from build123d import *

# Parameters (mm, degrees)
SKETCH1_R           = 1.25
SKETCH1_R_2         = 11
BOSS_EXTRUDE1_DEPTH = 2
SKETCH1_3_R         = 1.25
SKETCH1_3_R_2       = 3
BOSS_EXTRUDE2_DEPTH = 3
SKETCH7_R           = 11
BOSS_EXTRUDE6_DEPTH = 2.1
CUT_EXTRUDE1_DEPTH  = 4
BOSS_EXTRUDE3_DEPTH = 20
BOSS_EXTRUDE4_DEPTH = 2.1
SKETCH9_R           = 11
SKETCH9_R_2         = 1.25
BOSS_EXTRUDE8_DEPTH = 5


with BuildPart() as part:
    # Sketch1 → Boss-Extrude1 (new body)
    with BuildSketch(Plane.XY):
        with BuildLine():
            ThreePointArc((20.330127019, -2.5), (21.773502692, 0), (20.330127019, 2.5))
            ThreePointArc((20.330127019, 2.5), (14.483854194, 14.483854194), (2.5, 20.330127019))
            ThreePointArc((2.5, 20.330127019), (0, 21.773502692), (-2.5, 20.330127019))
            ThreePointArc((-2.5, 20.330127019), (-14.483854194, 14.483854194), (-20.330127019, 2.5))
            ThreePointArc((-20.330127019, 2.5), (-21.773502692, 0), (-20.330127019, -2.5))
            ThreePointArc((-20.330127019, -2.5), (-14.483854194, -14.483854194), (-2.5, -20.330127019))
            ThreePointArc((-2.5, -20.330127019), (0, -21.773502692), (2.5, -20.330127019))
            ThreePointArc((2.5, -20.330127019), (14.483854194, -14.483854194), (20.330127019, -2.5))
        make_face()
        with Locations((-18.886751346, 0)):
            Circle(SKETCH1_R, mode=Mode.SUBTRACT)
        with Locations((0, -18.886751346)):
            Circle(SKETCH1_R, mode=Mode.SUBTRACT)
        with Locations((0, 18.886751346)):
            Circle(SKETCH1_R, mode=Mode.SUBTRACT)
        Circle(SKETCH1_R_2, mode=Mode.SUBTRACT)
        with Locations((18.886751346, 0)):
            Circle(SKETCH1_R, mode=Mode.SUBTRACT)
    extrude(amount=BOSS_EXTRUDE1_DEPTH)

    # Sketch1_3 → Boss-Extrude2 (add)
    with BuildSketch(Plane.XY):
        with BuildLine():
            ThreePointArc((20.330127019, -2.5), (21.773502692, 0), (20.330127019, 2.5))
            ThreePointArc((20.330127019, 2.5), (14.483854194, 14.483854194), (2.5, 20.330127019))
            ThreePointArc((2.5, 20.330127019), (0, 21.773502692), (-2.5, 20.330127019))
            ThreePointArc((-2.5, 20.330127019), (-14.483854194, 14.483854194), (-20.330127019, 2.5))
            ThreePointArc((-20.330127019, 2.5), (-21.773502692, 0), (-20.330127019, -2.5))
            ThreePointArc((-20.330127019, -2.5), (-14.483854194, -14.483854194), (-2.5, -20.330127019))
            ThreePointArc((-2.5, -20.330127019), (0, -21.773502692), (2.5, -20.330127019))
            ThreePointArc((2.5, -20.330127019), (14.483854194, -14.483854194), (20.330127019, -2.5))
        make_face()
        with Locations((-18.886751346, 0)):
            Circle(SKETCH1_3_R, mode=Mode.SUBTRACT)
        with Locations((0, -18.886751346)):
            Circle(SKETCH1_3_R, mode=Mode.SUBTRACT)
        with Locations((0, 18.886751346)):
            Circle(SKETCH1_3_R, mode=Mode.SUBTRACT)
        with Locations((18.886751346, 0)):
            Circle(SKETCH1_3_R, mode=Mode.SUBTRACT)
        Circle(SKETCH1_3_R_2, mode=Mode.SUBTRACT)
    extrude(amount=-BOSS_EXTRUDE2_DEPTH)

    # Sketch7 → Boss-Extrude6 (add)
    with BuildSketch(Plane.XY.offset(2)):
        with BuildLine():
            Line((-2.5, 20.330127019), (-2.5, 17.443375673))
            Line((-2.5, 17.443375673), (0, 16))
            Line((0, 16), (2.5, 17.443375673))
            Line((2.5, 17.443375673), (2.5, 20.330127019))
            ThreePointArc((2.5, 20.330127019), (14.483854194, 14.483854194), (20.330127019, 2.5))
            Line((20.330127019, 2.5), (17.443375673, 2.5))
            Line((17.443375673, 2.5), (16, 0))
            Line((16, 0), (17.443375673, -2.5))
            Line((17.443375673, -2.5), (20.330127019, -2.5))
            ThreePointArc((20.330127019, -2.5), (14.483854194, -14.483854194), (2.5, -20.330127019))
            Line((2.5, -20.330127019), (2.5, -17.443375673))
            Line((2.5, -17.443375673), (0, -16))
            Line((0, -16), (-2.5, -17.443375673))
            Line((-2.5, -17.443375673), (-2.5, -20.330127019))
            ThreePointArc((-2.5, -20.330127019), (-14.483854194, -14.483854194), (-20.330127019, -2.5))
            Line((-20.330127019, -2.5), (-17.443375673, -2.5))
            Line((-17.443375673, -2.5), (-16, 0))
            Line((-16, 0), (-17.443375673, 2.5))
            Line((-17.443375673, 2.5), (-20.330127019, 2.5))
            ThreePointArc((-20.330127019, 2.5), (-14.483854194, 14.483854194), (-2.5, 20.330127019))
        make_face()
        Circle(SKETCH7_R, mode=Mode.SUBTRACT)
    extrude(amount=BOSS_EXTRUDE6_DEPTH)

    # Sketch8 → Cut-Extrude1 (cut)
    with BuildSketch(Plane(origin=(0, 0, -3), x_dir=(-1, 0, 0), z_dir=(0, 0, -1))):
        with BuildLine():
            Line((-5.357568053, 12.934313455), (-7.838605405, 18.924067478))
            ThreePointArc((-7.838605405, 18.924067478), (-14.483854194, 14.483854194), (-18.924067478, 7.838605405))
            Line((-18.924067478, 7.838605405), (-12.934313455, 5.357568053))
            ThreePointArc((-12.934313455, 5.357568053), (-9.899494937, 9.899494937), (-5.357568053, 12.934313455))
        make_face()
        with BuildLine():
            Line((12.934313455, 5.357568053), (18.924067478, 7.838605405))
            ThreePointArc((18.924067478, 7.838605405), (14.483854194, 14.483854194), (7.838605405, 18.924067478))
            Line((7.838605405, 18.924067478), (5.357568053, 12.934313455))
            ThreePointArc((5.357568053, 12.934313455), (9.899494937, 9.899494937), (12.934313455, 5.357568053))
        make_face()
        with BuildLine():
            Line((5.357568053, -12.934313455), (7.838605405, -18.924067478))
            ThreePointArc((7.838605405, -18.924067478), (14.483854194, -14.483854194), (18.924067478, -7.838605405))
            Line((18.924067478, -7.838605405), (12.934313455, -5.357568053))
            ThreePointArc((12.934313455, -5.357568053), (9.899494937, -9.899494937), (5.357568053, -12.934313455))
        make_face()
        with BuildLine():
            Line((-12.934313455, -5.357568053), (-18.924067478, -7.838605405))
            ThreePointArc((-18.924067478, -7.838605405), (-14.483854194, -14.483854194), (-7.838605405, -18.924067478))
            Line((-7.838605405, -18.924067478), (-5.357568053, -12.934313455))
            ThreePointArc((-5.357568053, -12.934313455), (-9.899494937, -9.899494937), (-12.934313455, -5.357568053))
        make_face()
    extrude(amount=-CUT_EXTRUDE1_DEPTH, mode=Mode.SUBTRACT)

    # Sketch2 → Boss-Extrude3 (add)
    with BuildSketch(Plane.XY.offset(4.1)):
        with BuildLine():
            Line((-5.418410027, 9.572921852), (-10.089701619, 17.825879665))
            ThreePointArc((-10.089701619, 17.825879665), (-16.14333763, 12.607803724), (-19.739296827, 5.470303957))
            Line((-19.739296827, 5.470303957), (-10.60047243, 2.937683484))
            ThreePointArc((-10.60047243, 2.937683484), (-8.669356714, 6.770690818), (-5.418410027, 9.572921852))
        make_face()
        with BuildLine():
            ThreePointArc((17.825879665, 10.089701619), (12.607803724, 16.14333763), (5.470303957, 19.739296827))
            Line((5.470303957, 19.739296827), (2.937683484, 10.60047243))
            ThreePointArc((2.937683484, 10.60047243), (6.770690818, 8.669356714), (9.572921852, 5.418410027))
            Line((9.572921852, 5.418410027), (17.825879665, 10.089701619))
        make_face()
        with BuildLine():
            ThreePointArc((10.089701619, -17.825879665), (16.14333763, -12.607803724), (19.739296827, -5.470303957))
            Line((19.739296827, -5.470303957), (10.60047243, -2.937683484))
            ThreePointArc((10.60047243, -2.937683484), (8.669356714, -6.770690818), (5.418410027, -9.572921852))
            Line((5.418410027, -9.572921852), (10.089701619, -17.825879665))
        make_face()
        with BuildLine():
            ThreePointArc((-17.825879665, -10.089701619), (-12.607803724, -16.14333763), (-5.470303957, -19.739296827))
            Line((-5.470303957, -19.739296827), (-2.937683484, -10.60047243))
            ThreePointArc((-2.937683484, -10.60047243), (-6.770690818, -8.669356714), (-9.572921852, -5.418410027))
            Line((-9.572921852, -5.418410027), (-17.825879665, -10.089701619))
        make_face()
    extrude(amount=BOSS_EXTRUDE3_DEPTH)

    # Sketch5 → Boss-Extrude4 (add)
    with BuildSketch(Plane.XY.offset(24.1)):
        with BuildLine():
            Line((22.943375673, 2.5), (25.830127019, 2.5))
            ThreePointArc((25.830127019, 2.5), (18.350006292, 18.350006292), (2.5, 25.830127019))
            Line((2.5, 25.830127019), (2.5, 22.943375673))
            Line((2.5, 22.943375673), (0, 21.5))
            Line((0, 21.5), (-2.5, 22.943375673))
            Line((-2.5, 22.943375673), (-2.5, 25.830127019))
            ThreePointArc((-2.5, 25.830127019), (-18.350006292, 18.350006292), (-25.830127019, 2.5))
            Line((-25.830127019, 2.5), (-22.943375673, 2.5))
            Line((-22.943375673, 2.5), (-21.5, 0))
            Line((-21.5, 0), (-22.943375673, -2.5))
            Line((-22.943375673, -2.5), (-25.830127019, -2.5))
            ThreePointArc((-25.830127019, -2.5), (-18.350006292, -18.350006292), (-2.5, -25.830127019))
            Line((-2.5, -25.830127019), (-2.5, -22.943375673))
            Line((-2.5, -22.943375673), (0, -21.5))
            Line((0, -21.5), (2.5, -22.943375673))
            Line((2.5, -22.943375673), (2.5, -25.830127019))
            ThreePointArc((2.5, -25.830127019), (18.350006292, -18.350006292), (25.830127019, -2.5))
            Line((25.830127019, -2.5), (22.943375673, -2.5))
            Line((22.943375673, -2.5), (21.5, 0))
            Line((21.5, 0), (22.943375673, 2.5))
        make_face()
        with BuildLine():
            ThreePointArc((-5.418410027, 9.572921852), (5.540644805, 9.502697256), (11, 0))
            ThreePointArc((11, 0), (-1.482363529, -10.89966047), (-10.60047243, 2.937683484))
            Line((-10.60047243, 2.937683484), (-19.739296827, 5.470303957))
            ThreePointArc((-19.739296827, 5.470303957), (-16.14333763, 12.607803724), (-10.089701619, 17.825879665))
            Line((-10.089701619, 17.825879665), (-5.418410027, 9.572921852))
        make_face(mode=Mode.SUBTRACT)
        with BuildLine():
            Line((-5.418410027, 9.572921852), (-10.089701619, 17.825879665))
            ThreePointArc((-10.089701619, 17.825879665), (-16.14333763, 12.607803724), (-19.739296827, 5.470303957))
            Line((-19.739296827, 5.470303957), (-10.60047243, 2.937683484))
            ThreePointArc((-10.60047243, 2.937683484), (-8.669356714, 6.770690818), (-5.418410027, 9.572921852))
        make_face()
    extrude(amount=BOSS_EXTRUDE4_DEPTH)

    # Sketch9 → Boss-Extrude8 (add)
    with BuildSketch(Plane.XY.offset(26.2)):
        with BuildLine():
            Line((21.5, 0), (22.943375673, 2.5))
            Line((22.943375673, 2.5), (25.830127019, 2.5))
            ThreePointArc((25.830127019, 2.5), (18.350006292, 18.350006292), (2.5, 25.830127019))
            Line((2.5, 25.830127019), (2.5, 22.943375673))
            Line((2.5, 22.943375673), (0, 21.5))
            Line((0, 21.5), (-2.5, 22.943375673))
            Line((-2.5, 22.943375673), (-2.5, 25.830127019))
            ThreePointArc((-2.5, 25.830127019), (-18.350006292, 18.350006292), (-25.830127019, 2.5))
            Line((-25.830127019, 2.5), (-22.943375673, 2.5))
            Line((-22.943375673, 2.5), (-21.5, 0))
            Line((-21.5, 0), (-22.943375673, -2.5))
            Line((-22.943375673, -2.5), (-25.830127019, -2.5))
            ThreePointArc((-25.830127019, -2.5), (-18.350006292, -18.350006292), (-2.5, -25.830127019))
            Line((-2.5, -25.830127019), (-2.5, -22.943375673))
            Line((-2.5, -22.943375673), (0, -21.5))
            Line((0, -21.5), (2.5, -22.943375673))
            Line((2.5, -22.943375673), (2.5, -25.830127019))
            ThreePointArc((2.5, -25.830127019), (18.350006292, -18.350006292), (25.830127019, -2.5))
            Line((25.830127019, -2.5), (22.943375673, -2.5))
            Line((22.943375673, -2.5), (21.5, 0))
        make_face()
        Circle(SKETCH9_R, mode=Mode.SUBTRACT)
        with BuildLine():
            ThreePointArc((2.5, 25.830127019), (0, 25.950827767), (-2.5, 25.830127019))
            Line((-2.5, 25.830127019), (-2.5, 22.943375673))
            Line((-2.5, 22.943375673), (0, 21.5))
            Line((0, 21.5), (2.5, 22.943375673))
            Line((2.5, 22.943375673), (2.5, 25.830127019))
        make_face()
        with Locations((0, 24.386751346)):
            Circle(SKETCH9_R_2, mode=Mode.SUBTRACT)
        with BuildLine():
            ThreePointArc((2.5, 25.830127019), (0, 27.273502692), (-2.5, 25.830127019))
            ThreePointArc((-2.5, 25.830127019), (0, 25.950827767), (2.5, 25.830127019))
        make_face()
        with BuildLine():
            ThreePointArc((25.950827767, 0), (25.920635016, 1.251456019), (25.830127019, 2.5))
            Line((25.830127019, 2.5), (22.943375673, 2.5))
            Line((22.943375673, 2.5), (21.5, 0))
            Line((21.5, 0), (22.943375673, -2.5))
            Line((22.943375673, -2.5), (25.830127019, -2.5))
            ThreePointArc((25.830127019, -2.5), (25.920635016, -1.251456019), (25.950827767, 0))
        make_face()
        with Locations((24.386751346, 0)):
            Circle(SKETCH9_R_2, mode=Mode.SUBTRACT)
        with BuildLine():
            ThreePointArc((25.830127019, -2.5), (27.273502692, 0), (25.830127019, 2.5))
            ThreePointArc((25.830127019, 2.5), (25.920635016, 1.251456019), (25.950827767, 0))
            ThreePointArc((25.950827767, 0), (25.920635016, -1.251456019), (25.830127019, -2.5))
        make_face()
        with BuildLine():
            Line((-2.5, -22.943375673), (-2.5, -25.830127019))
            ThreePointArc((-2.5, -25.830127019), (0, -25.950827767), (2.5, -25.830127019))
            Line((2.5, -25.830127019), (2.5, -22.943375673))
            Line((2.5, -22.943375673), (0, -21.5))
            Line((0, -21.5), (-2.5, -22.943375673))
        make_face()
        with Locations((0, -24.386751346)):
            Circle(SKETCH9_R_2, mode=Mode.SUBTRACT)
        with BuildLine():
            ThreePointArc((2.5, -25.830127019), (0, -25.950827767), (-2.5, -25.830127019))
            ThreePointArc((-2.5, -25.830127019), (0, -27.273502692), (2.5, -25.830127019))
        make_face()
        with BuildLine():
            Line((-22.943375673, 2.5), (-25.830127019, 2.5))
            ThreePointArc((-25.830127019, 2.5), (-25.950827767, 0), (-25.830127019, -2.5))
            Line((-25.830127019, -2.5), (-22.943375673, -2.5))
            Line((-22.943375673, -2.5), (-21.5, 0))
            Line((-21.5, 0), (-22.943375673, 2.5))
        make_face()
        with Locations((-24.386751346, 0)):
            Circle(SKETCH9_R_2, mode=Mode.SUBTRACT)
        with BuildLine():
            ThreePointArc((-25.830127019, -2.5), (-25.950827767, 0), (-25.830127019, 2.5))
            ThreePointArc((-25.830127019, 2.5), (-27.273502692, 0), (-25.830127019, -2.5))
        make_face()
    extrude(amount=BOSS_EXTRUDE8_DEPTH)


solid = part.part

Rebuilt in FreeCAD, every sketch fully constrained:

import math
import FreeCAD as App
import Part
import Sketcher
Q = App.Units.Quantity

doc = App.newDocument("Part")
body = doc.addObject("PartDesign::Body", "Body")

# Sketch on XY plane
sketch1 = doc.addObject("Sketcher::SketchObject", "Sketch")
body.addObject(sketch1)
sketch1.AttachmentSupport = (doc.XY_Plane, [""])
sketch1.MapMode = "FlatFace"
sketch1.addGeometry([
    Part.ArcOfCircle(Part.Circle(App.Vector(18.9, 0, 0), App.Vector(0, 0, 1), 2.9), math.radians(-60), math.radians(60)),  # 0
    Part.ArcOfCircle(Part.Circle(App.Vector(0, 0, 0), App.Vector(0, 0, 1), 20.5), math.radians(7), math.radians(83)),  # 1
    Part.ArcOfCircle(Part.Circle(App.Vector(0, 18.9, 0), App.Vector(0, 0, 1), 2.9), math.radians(30), math.radians(150)),  # 2
    Part.ArcOfCircle(Part.Circle(App.Vector(0, 0, 0), App.Vector(0, 0, 1), 20.5), math.radians(97), math.radians(173)),  # 3
    Part.ArcOfCircle(Part.Circle(App.Vector(-18.9, 0, 0), App.Vector(0, 0, 1), 2.9), math.radians(120), math.radians(240)),  # 4
    Part.ArcOfCircle(Part.Circle(App.Vector(0, 0, 0), App.Vector(0, 0, 1), 20.5), math.radians(-173), math.radians(-97)),  # 5
    Part.ArcOfCircle(Part.Circle(App.Vector(0, -18.9, 0), App.Vector(0, 0, 1), 2.9), math.radians(-150), math.radians(-30)),  # 6
    Part.ArcOfCircle(Part.Circle(App.Vector(0, 0, 0), App.Vector(0, 0, 1), 20.5), math.radians(-83), math.radians(-7)),  # 7
    Part.Circle(App.Vector(0, -18.9, 0), App.Vector(0, 0, 1), 1.2),  # 8
    Part.Circle(App.Vector(-18.9, 0, 0), App.Vector(0, 0, 1), 1.2),  # 9
    Part.Circle(App.Vector(0, 0, 0), App.Vector(0, 0, 1), 11),  # 10
    Part.Circle(App.Vector(18.9, 0, 0), App.Vector(0, 0, 1), 1.2),  # 11
    Part.Circle(App.Vector(0, 18.9, 0), App.Vector(0, 0, 1), 1.2),  # 12
], False)
sketch1.addConstraint([
    Sketcher.Constraint("Coincident", 0, 2, 1, 1),
    Sketcher.Constraint("Coincident", 1, 2, 2, 1),
    Sketcher.Constraint("Coincident", 2, 2, 3, 1),
    Sketcher.Constraint("Coincident", 3, 2, 4, 1),
    Sketcher.Constraint("Coincident", 4, 2, 5, 1),
    Sketcher.Constraint("Coincident", 5, 2, 6, 1),
    Sketcher.Constraint("Coincident", 6, 2, 7, 1),
    Sketcher.Constraint("Coincident", 7, 2, 0, 1),
    Sketcher.Constraint("Coincident", 1, 3, -1, 1),
    Sketcher.Constraint("Coincident", 3, 3, -1, 1),
    Sketcher.Constraint("Coincident", 5, 3, -1, 1),
    Sketcher.Constraint("Coincident", 7, 3, -1, 1),
    Sketcher.Constraint("Coincident", 10, 3, -1, 1),
    Sketcher.Constraint("Coincident", 8, 3, 6, 3),
    Sketcher.Constraint("Coincident", 9, 3, 4, 3),
    Sketcher.Constraint("Coincident", 11, 3, 0, 3),
    Sketcher.Constraint("Coincident", 12, 3, 2, 3),
    Sketcher.Constraint("Equal", 0, 2),
    Sketcher.Constraint("Equal", 1, 3),
    Sketcher.Constraint("Equal", 2, 4),
    Sketcher.Constraint("Equal", 3, 5),
    Sketcher.Constraint("Equal", 4, 6),
    Sketcher.Constraint("Equal", 5, 7),
    Sketcher.Constraint("Equal", 8, 9),
    Sketcher.Constraint("Equal", 9, 11),
    Sketcher.Constraint("Equal", 11, 12),
    Sketcher.Constraint("Symmetric", 0, 3, 4, 3, -1, 1),
    Sketcher.Constraint("Symmetric", 2, 3, 6, 3, -1, 1),
    Sketcher.Constraint("PointOnObject", 0, 3, -1),
    Sketcher.Constraint("PointOnObject", 2, 3, -2),
    Sketcher.Constraint("Diameter", 10, 22.0),
    Sketcher.Constraint("Diameter", 8, 2.5),
    Sketcher.Constraint("DistanceX", 2, 2, 1, 2, 5.0),
    Sketcher.Constraint("DistanceY", 4, 2, 3, 2, 5.0),
    Sketcher.Constraint("Radius", 0, 2.886751),
    Sketcher.Constraint("Radius", 1, 20.483263),
])
pad1 = doc.addObject("PartDesign::Pad", "Pad")
body.addObject(pad1)
pad1.Profile = sketch1
pad1.Length = 2

# Sketch on XY plane
sketch2 = doc.addObject("Sketcher::SketchObject", "Sketch001")
body.addObject(sketch2)
sketch2.AttachmentSupport = (doc.XY_Plane, [""])
sketch2.MapMode = "FlatFace"
sketch2.addGeometry([
    Part.ArcOfCircle(Part.Circle(App.Vector(18.9, 0, 0), App.Vector(0, 0, 1), 2.9), math.radians(-60), math.radians(60)),  # 0
    Part.ArcOfCircle(Part.Circle(App.Vector(0, 0, 0), App.Vector(0, 0, 1), 20.5), math.radians(7), math.radians(83)),  # 1
    Part.ArcOfCircle(Part.Circle(App.Vector(0, 18.9, 0), App.Vector(0, 0, 1), 2.9), math.radians(30), math.radians(150)),  # 2
    Part.ArcOfCircle(Part.Circle(App.Vector(0, 0, 0), App.Vector(0, 0, 1), 20.5), math.radians(97), math.radians(173)),  # 3
    Part.ArcOfCircle(Part.Circle(App.Vector(-18.9, 0, 0), App.Vector(0, 0, 1), 2.9), math.radians(120), math.radians(240)),  # 4
    Part.ArcOfCircle(Part.Circle(App.Vector(0, 0, 0), App.Vector(0, 0, 1), 20.5), math.radians(-173), math.radians(-97)),  # 5
    Part.ArcOfCircle(Part.Circle(App.Vector(0, -18.9, 0), App.Vector(0, 0, 1), 2.9), math.radians(-150), math.radians(-30)),  # 6
    Part.ArcOfCircle(Part.Circle(App.Vector(0, 0, 0), App.Vector(0, 0, 1), 20.5), math.radians(-83), math.radians(-7)),  # 7
    Part.Circle(App.Vector(0, -18.9, 0), App.Vector(0, 0, 1), 1.2),  # 8
    Part.Circle(App.Vector(-18.9, 0, 0), App.Vector(0, 0, 1), 1.2),  # 9
    Part.Circle(App.Vector(0, 0, 0), App.Vector(0, 0, 1), 3),  # 10
    Part.Circle(App.Vector(18.9, 0, 0), App.Vector(0, 0, 1), 1.2),  # 11
    Part.Circle(App.Vector(0, 18.9, 0), App.Vector(0, 0, 1), 1.2),  # 12
], False)
sketch2.addConstraint([
    Sketcher.Constraint("Coincident", 0, 2, 1, 1),
    Sketcher.Constraint("Coincident", 1, 2, 2, 1),
    Sketcher.Constraint("Coincident", 2, 2, 3, 1),
    Sketcher.Constraint("Coincident", 3, 2, 4, 1),
    Sketcher.Constraint("Coincident", 4, 2, 5, 1),
    Sketcher.Constraint("Coincident", 5, 2, 6, 1),
    Sketcher.Constraint("Coincident", 6, 2, 7, 1),
    Sketcher.Constraint("Coincident", 7, 2, 0, 1),
    Sketcher.Constraint("Coincident", 1, 3, -1, 1),
    Sketcher.Constraint("Coincident", 3, 3, -1, 1),
    Sketcher.Constraint("Coincident", 5, 3, -1, 1),
    Sketcher.Constraint("Coincident", 7, 3, -1, 1),
    Sketcher.Constraint("Coincident", 10, 3, -1, 1),
    Sketcher.Constraint("Coincident", 8, 3, 6, 3),
    Sketcher.Constraint("Coincident", 9, 3, 4, 3),
    Sketcher.Constraint("Coincident", 11, 3, 0, 3),
    Sketcher.Constraint("Coincident", 12, 3, 2, 3),
    Sketcher.Constraint("Equal", 0, 2),
    Sketcher.Constraint("Equal", 1, 3),
    Sketcher.Constraint("Equal", 2, 4),
    Sketcher.Constraint("Equal", 3, 5),
    Sketcher.Constraint("Equal", 4, 6),
    Sketcher.Constraint("Equal", 5, 7),
    Sketcher.Constraint("Equal", 8, 9),
    Sketcher.Constraint("Equal", 9, 11),
    Sketcher.Constraint("Equal", 11, 12),
    Sketcher.Constraint("Symmetric", 0, 3, 4, 3, -1, 1),
    Sketcher.Constraint("Symmetric", 2, 3, 6, 3, -1, 1),
    Sketcher.Constraint("PointOnObject", 0, 3, -1),
    Sketcher.Constraint("PointOnObject", 2, 3, -2),
    Sketcher.Constraint("Diameter", 10, 6.0),
    Sketcher.Constraint("Diameter", 8, 2.5),
    Sketcher.Constraint("DistanceX", 2, 2, 1, 2, 5.0),
    Sketcher.Constraint("DistanceY", 4, 2, 3, 2, 5.0),
    Sketcher.Constraint("Radius", 0, 2.886751),
    Sketcher.Constraint("Radius", 1, 20.483263),
])
pad2 = doc.addObject("PartDesign::Pad", "Pad001")
body.addObject(pad2)
pad2.Profile = sketch2
pad2.Length = 3
pad2.Reversed = True

# Sketch on XY plane
sketch3 = doc.addObject("Sketcher::SketchObject", "Sketch002")
body.addObject(sketch3)
sketch3.AttachmentSupport = (doc.XY_Plane, [""])
sketch3.MapMode = "FlatFace"
sketch3.AttachmentOffset = App.Placement(App.Vector(0, 0, 2), App.Rotation())
sketch3.addGeometry([
    Part.LineSegment(App.Vector(-2.5, 17.4, 0), App.Vector(-2.5, 20.3, 0)),  # 0
    Part.ArcOfCircle(Part.Circle(App.Vector(0, 0, 0), App.Vector(0, 0, 1), 20.5), math.radians(97), math.radians(173)),  # 1
    Part.LineSegment(App.Vector(-20.3, 2.5, 0), App.Vector(-17.4, 2.5, 0)),  # 2
    Part.LineSegment(App.Vector(-17.4, 2.5, 0), App.Vector(-16, 0, 0)),  # 3
    Part.LineSegment(App.Vector(-16, 0, 0), App.Vector(-17.4, -2.5, 0)),  # 4
    Part.LineSegment(App.Vector(-17.4, -2.5, 0), App.Vector(-20.3, -2.5, 0)),  # 5
    Part.ArcOfCircle(Part.Circle(App.Vector(0, 0, 0), App.Vector(0, 0, 1), 20.5), math.radians(-173), math.radians(-97)),  # 6
    Part.LineSegment(App.Vector(-2.5, -20.3, 0), App.Vector(-2.5, -17.4, 0)),  # 7
    Part.LineSegment(App.Vector(-2.5, -17.4, 0), App.Vector(0, -16, 0)),  # 8
    Part.LineSegment(App.Vector(0, -16, 0), App.Vector(2.5, -17.4, 0)),  # 9
    Part.LineSegment(App.Vector(2.5, -17.4, 0), App.Vector(2.5, -20.3, 0)),  # 10
    Part.ArcOfCircle(Part.Circle(App.Vector(0, 0, 0), App.Vector(0, 0, 1), 20.5), math.radians(-83), math.radians(-7)),  # 11
    Part.LineSegment(App.Vector(20.3, -2.5, 0), App.Vector(17.4, -2.5, 0)),  # 12
    Part.LineSegment(App.Vector(17.4, -2.5, 0), App.Vector(16, 0, 0)),  # 13
    Part.LineSegment(App.Vector(16, 0, 0), App.Vector(17.4, 2.5, 0)),  # 14
    Part.LineSegment(App.Vector(17.4, 2.5, 0), App.Vector(20.3, 2.5, 0)),  # 15
    Part.ArcOfCircle(Part.Circle(App.Vector(0, 0, 0), App.Vector(0, 0, 1), 20.5), math.radians(7), math.radians(83)),  # 16
    Part.LineSegment(App.Vector(2.5, 20.3, 0), App.Vector(2.5, 17.4, 0)),  # 17
    Part.LineSegment(App.Vector(2.5, 17.4, 0), App.Vector(0, 16, 0)),  # 18
    Part.LineSegment(App.Vector(0, 16, 0), App.Vector(-2.5, 17.4, 0)),  # 19
    Part.Circle(App.Vector(0, 0, 0), App.Vector(0, 0, 1), 11),  # 20
], False)
sketch3.addConstraint([
    Sketcher.Constraint("Coincident", 0, 2, 1, 1),
    Sketcher.Constraint("Coincident", 1, 2, 2, 1),
    Sketcher.Constraint("Coincident", 2, 2, 3, 1),
    Sketcher.Constraint("Coincident", 3, 2, 4, 1),
    Sketcher.Constraint("Coincident", 4, 2, 5, 1),
    Sketcher.Constraint("Coincident", 5, 2, 6, 1),
    Sketcher.Constraint("Coincident", 6, 2, 7, 1),
    Sketcher.Constraint("Coincident", 7, 2, 8, 1),
    Sketcher.Constraint("Coincident", 8, 2, 9, 1),
    Sketcher.Constraint("Coincident", 9, 2, 10, 1),
    Sketcher.Constraint("Coincident", 10, 2, 11, 1),
    Sketcher.Constraint("Coincident", 11, 2, 12, 1),
    Sketcher.Constraint("Coincident", 12, 2, 13, 1),
    Sketcher.Constraint("Coincident", 13, 2, 14, 1),
    Sketcher.Constraint("Coincident", 14, 2, 15, 1),
    Sketcher.Constraint("Coincident", 15, 2, 16, 1),
    Sketcher.Constraint("Coincident", 16, 2, 17, 1),
    Sketcher.Constraint("Coincident", 17, 2, 18, 1),
    Sketcher.Constraint("Coincident", 18, 2, 19, 1),
    Sketcher.Constraint("Coincident", 19, 2, 0, 1),
    Sketcher.Constraint("Vertical", 0),
    Sketcher.Constraint("Horizontal", 2),
    Sketcher.Constraint("Horizontal", 5),
    Sketcher.Constraint("Vertical", 7),
    Sketcher.Constraint("Vertical", 10),
    Sketcher.Constraint("Horizontal", 12),
    Sketcher.Constraint("Horizontal", 15),
    Sketcher.Constraint("Vertical", 17),
    Sketcher.Constraint("Coincident", 1, 3, -1, 1),
    Sketcher.Constraint("Coincident", 6, 3, -1, 1),
    Sketcher.Constraint("Coincident", 11, 3, -1, 1),
    Sketcher.Constraint("Coincident", 16, 3, -1, 1),
    Sketcher.Constraint("Coincident", 20, 3, -1, 1),
    Sketcher.Constraint("Equal", 1, 6),
    Sketcher.Constraint("Equal", 6, 11),
    Sketcher.Constraint("Equal", 11, 16),
    Sketcher.Constraint("Symmetric", 2, 2, 12, 2, -1, 1),
    Sketcher.Constraint("Symmetric", 3, 2, 13, 2, -1, 1),
    Sketcher.Constraint("Symmetric", 4, 2, 14, 2, -1, 1),
    Sketcher.Constraint("Symmetric", 7, 2, 17, 2, -1, 1),
    Sketcher.Constraint("Symmetric", 8, 2, 18, 2, -1, 1),
    Sketcher.Constraint("Symmetric", 9, 2, 19, 2, -1, 1),
    Sketcher.Constraint("Symmetric", 7, 2, 9, 2, -2),
    Sketcher.Constraint("Symmetric", 4, 2, 12, 2, -2),
    Sketcher.Constraint("PointOnObject", 3, 2, -1),
    Sketcher.Constraint("PointOnObject", 8, 2, -2),
    Sketcher.Constraint("Perpendicular", 3, 8),
    Sketcher.Constraint("Equal", 15, 0),
    Sketcher.Constraint("Equal", 4, 8),
    Sketcher.Constraint("Diameter", 20, 22.0),
    Sketcher.Constraint("Angle", 3, Q("-60 deg")),
    Sketcher.Constraint("DistanceX", 3, 2, -1, 1, 16.0),
    Sketcher.Constraint("DistanceY", 4, 2, 2, 2, 5.0),
    Sketcher.Constraint("Radius", 1, 20.483263),
])
pad3 = doc.addObject("PartDesign::Pad", "Pad002")
body.addObject(pad3)
pad3.Profile = sketch3
pad3.Length = 2.1

# Sketch on XY plane
sketch4 = doc.addObject("Sketcher::SketchObject", "Sketch003")
body.addObject(sketch4)
sketch4.AttachmentSupport = (doc.XY_Plane, [""])
sketch4.MapMode = "FlatFace"
sketch4.AttachmentOffset = App.Placement(App.Vector(0, 0, -3), App.Rotation())
sketch4.addGeometry([
    Part.LineSegment(App.Vector(5, 13, 0), App.Vector(8, 19, 0)),  # 0
    Part.ArcOfCircle(Part.Circle(App.Vector(0, 0, 0), App.Vector(0, 0, 1), 20), math.radians(22), math.radians(68)),  # 1
    Part.LineSegment(App.Vector(19, 8, 0), App.Vector(13, 5, 0)),  # 2
    Part.ArcOfCircle(Part.Circle(App.Vector(0, 0, 0), App.Vector(0, 0, 1), 14), math.radians(22), math.radians(68)),  # 3
    Part.LineSegment(App.Vector(-13, 5, 0), App.Vector(-19, 8, 0)),  # 4
    Part.ArcOfCircle(Part.Circle(App.Vector(0, 0, 0), App.Vector(0, 0, 1), 20), math.radians(112), math.radians(158)),  # 5
    Part.LineSegment(App.Vector(-8, 19, 0), App.Vector(-5, 13, 0)),  # 6
    Part.ArcOfCircle(Part.Circle(App.Vector(0, 0, 0), App.Vector(0, 0, 1), 14), math.radians(112), math.radians(158)),  # 7
    Part.LineSegment(App.Vector(-5, -13, 0), App.Vector(-8, -19, 0)),  # 8
    Part.ArcOfCircle(Part.Circle(App.Vector(0, 0, 0), App.Vector(0, 0, 1), 20), math.radians(-158), math.radians(-112)),  # 9
    Part.LineSegment(App.Vector(-19, -8, 0), App.Vector(-13, -5, 0)),  # 10
    Part.ArcOfCircle(Part.Circle(App.Vector(0, 0, 0), App.Vector(0, 0, 1), 14), math.radians(-158), math.radians(-112)),  # 11
    Part.LineSegment(App.Vector(13, -5, 0), App.Vector(19, -8, 0)),  # 12
    Part.ArcOfCircle(Part.Circle(App.Vector(0, 0, 0), App.Vector(0, 0, 1), 20), math.radians(-68), math.radians(-22)),  # 13
    Part.LineSegment(App.Vector(8, -19, 0), App.Vector(5, -13, 0)),  # 14
    Part.ArcOfCircle(Part.Circle(App.Vector(0, 0, 0), App.Vector(0, 0, 1), 14), math.radians(-68), math.radians(-22)),  # 15
], False)
sketch4.addConstraint([
    Sketcher.Constraint("Coincident", 0, 2, 1, 2),
    Sketcher.Constraint("Coincident", 1, 1, 2, 1),
    Sketcher.Constraint("Coincident", 2, 2, 3, 1),
    Sketcher.Constraint("Coincident", 3, 2, 0, 1),
    Sketcher.Constraint("Coincident", 4, 2, 5, 2),
    Sketcher.Constraint("Coincident", 5, 1, 6, 1),
    Sketcher.Constraint("Coincident", 6, 2, 7, 1),
    Sketcher.Constraint("Coincident", 7, 2, 4, 1),
    Sketcher.Constraint("Coincident", 8, 2, 9, 2),
    Sketcher.Constraint("Coincident", 9, 1, 10, 1),
    Sketcher.Constraint("Coincident", 10, 2, 11, 1),
    Sketcher.Constraint("Coincident", 11, 2, 8, 1),
    Sketcher.Constraint("Coincident", 12, 2, 13, 2),
    Sketcher.Constraint("Coincident", 13, 1, 14, 1),
    Sketcher.Constraint("Coincident", 14, 2, 15, 1),
    Sketcher.Constraint("Coincident", 15, 2, 12, 1),
    Sketcher.Constraint("Coincident", 1, 3, -1, 1),
    Sketcher.Constraint("Coincident", 3, 3, -1, 1),
    Sketcher.Constraint("Coincident", 5, 3, -1, 1),
    Sketcher.Constraint("Coincident", 7, 3, -1, 1),
    Sketcher.Constraint("Coincident", 9, 3, -1, 1),
    Sketcher.Constraint("Coincident", 11, 3, -1, 1),
    Sketcher.Constraint("Coincident", 13, 3, -1, 1),
    Sketcher.Constraint("Coincident", 15, 3, -1, 1),
    Sketcher.Constraint("Equal", 1, 5),
    Sketcher.Constraint("Equal", 3, 7),
    Sketcher.Constraint("Equal", 5, 9),
    Sketcher.Constraint("Equal", 7, 11),
    Sketcher.Constraint("Equal", 9, 13),
    Sketcher.Constraint("Equal", 11, 15),
    Sketcher.Constraint("Perpendicular", 0, 4),
    Sketcher.Constraint("Perpendicular", 2, 6),
    Sketcher.Constraint("Perpendicular", 4, 8),
    Sketcher.Constraint("Perpendicular", 6, 10),
    Sketcher.Constraint("Perpendicular", 8, 12),
    Sketcher.Constraint("Perpendicular", 10, 14),
    Sketcher.Constraint("Horizontal", 1, 1, 4, 2),
    Sketcher.Constraint("Horizontal", 0, 2, 5, 1),
    Sketcher.Constraint("Horizontal", 3, 2, 6, 2),
    Sketcher.Constraint("Horizontal", 9, 1, 12, 2),
    Sketcher.Constraint("Horizontal", 8, 2, 13, 1),
    Sketcher.Constraint("Vertical", 5, 1, 8, 2),
    Sketcher.Constraint("Vertical", 4, 2, 9, 1),
    Sketcher.Constraint("Radius", 3, 14.0),
    Sketcher.Constraint("Angle", 0, Q("67.5 deg")),
    Sketcher.Constraint("Radius", 1, 20.483263),
    Sketcher.Constraint("DistanceY", -1, 1, 2, 2, 5.357568),
    Sketcher.Constraint("DistanceX", -1, 1, 3, 2, 5.357568),
])
pocket1 = doc.addObject("PartDesign::Pocket", "Pocket")
body.addObject(pocket1)
pocket1.Profile = sketch4
pocket1.Length = 4
pocket1.Reversed = True

# Sketch on XY plane
sketch5 = doc.addObject("Sketcher::SketchObject", "Sketch004")
body.addObject(sketch5)
sketch5.AttachmentSupport = (doc.XY_Plane, [""])
sketch5.MapMode = "FlatFace"
sketch5.AttachmentOffset = App.Placement(App.Vector(0, 0, 4.1), App.Rotation())
sketch5.addGeometry([
    Part.LineSegment(App.Vector(-5, 10, 0), App.Vector(-10, 18, 0)),  # 0
    Part.ArcOfCircle(Part.Circle(App.Vector(0, 0, 0), App.Vector(0, 0, 1), 20), math.radians(120), math.radians(165)),  # 1
    Part.LineSegment(App.Vector(-20, 5, 0), App.Vector(-11, 3, 0)),  # 2
    Part.ArcOfCircle(Part.Circle(App.Vector(0, 0, 0), App.Vector(0, 0, 1), 11), math.radians(120), math.radians(165)),  # 3
    Part.ArcOfCircle(Part.Circle(App.Vector(0, 0, 0), App.Vector(0, 0, 1), 20), math.radians(30), math.radians(75)),  # 4
    Part.LineSegment(App.Vector(5, 20, 0), App.Vector(3, 11, 0)),  # 5
    Part.ArcOfCircle(Part.Circle(App.Vector(0, 0, 0), App.Vector(0, 0, 1), 11), math.radians(30), math.radians(75)),  # 6
    Part.LineSegment(App.Vector(10, 5, 0), App.Vector(18, 10, 0)),  # 7
    Part.ArcOfCircle(Part.Circle(App.Vector(0, 0, 0), App.Vector(0, 0, 1), 20), math.radians(-60), math.radians(-15)),  # 8
    Part.LineSegment(App.Vector(20, -5, 0), App.Vector(11, -3, 0)),  # 9
    Part.ArcOfCircle(Part.Circle(App.Vector(0, 0, 0), App.Vector(0, 0, 1), 11), math.radians(-60), math.radians(-15)),  # 10
    Part.LineSegment(App.Vector(5, -10, 0), App.Vector(10, -18, 0)),  # 11
    Part.ArcOfCircle(Part.Circle(App.Vector(0, 0, 0), App.Vector(0, 0, 1), 20), math.radians(-150), math.radians(-105)),  # 12
    Part.LineSegment(App.Vector(-5, -20, 0), App.Vector(-3, -11, 0)),  # 13
    Part.ArcOfCircle(Part.Circle(App.Vector(0, 0, 0), App.Vector(0, 0, 1), 11), math.radians(-150), math.radians(-105)),  # 14
    Part.LineSegment(App.Vector(-10, -5, 0), App.Vector(-18, -10, 0)),  # 15
], False)
sketch5.addConstraint([
    Sketcher.Constraint("Coincident", 0, 2, 1, 1),
    Sketcher.Constraint("Coincident", 1, 2, 2, 1),
    Sketcher.Constraint("Coincident", 2, 2, 3, 2),
    Sketcher.Constraint("Coincident", 3, 1, 0, 1),
    Sketcher.Constraint("Coincident", 4, 2, 5, 1),
    Sketcher.Constraint("Coincident", 5, 2, 6, 2),
    Sketcher.Constraint("Coincident", 6, 1, 7, 1),
    Sketcher.Constraint("Coincident", 7, 2, 4, 1),
    Sketcher.Constraint("Coincident", 8, 2, 9, 1),
    Sketcher.Constraint("Coincident", 9, 2, 10, 2),
    Sketcher.Constraint("Coincident", 10, 1, 11, 1),
    Sketcher.Constraint("Coincident", 11, 2, 8, 1),
    Sketcher.Constraint("Coincident", 12, 2, 13, 1),
    Sketcher.Constraint("Coincident", 13, 2, 14, 2),
    Sketcher.Constraint("Coincident", 14, 1, 15, 1),
    Sketcher.Constraint("Coincident", 15, 2, 12, 1),
    Sketcher.Constraint("Coincident", 1, 3, -1, 1),
    Sketcher.Constraint("Coincident", 3, 3, -1, 1),
    Sketcher.Constraint("Coincident", 4, 3, -1, 1),
    Sketcher.Constraint("Coincident", 6, 3, -1, 1),
    Sketcher.Constraint("Coincident", 8, 3, -1, 1),
    Sketcher.Constraint("Coincident", 10, 3, -1, 1),
    Sketcher.Constraint("Coincident", 12, 3, -1, 1),
    Sketcher.Constraint("Coincident", 14, 3, -1, 1),
    Sketcher.Constraint("Equal", 1, 4),
    Sketcher.Constraint("Equal", 3, 6),
    Sketcher.Constraint("Equal", 4, 8),
    Sketcher.Constraint("Equal", 6, 10),
    Sketcher.Constraint("Equal", 8, 12),
    Sketcher.Constraint("Equal", 10, 14),
    Sketcher.Constraint("Perpendicular", 2, 5),
    Sketcher.Constraint("Perpendicular", 0, 7),
    Sketcher.Constraint("Perpendicular", 5, 9),
    Sketcher.Constraint("Perpendicular", 7, 11),
    Sketcher.Constraint("Perpendicular", 9, 13),
    Sketcher.Constraint("Perpendicular", 11, 15),
    Sketcher.Constraint("Radius", 3, 11.0),
    Sketcher.Constraint("Radius", 1, 20.483263),
    Sketcher.Constraint("DistanceX", 0, 2, -1, 1, 10.089702),
    Sketcher.Constraint("DistanceY", -1, 1, 7, 2, 10.089702),
    Sketcher.Constraint("DistanceX", -1, 1, 11, 2, 10.089702),
    Sketcher.Constraint("DistanceY", 15, 2, -1, 1, 10.089702),
    Sketcher.Constraint("DistanceX", 3, 1, -1, 1, 5.41841),
    Sketcher.Constraint("DistanceY", 2, 2, 1, 2, 2.53262),
    Sketcher.Constraint("DistanceY", 2, 2, 3, 1, 6.635238),
    Sketcher.Constraint("DistanceY", 3, 1, 5, 2, 1.027551),
    Sketcher.Constraint("DistanceX", 6, 1, 9, 2, 1.027551),
    Sketcher.Constraint("DistanceY", 13, 2, 10, 1, 1.027551),
])
pad4 = doc.addObject("PartDesign::Pad", "Pad003")
body.addObject(pad4)
pad4.Profile = sketch5
pad4.Length = 20

# Sketch on XY plane
sketch6 = doc.addObject("Sketcher::SketchObject", "Sketch005")
body.addObject(sketch6)
sketch6.AttachmentSupport = (doc.XY_Plane, [""])
sketch6.MapMode = "FlatFace"
sketch6.AttachmentOffset = App.Placement(App.Vector(0, 0, 24.1), App.Rotation())
sketch6.addGeometry([
    Part.LineSegment(App.Vector(22.9, 2.5, 0), App.Vector(25.8, 2.5, 0)),  # 0
    Part.ArcOfCircle(Part.Circle(App.Vector(0, 0, 0), App.Vector(0, 0, 1), 26), math.radians(6), math.radians(84)),  # 1
    Part.LineSegment(App.Vector(2.5, 25.8, 0), App.Vector(2.5, 22.9, 0)),  # 2
    Part.LineSegment(App.Vector(2.5, 22.9, 0), App.Vector(0, 21.5, 0)),  # 3
    Part.LineSegment(App.Vector(0, 21.5, 0), App.Vector(-2.5, 22.9, 0)),  # 4
    Part.LineSegment(App.Vector(-2.5, 22.9, 0), App.Vector(-2.5, 25.8, 0)),  # 5
    Part.ArcOfCircle(Part.Circle(App.Vector(0, 0, 0), App.Vector(0, 0, 1), 26), math.radians(96), math.radians(174)),  # 6
    Part.LineSegment(App.Vector(-25.8, 2.5, 0), App.Vector(-22.9, 2.5, 0)),  # 7
    Part.LineSegment(App.Vector(-22.9, 2.5, 0), App.Vector(-21.5, 0, 0)),  # 8
    Part.LineSegment(App.Vector(-21.5, 0, 0), App.Vector(-22.9, -2.5, 0)),  # 9
    Part.LineSegment(App.Vector(-22.9, -2.5, 0), App.Vector(-25.8, -2.5, 0)),  # 10
    Part.ArcOfCircle(Part.Circle(App.Vector(0, 0, 0), App.Vector(0, 0, 1), 26), math.radians(-174), math.radians(-96)),  # 11
    Part.LineSegment(App.Vector(-2.5, -25.8, 0), App.Vector(-2.5, -22.9, 0)),  # 12
    Part.LineSegment(App.Vector(-2.5, -22.9, 0), App.Vector(0, -21.5, 0)),  # 13
    Part.LineSegment(App.Vector(0, -21.5, 0), App.Vector(2.5, -22.9, 0)),  # 14
    Part.LineSegment(App.Vector(2.5, -22.9, 0), App.Vector(2.5, -25.8, 0)),  # 15
    Part.ArcOfCircle(Part.Circle(App.Vector(0, 0, 0), App.Vector(0, 0, 1), 26), math.radians(-84), math.radians(-6)),  # 16
    Part.LineSegment(App.Vector(25.8, -2.5, 0), App.Vector(22.9, -2.5, 0)),  # 17
    Part.LineSegment(App.Vector(22.9, -2.5, 0), App.Vector(21.5, 0, 0)),  # 18
    Part.LineSegment(App.Vector(21.5, 0, 0), App.Vector(22.9, 2.5, 0)),  # 19
    Part.ArcOfCircle(Part.Circle(App.Vector(0, 0, 0), App.Vector(0, 0, 1), 11), math.radians(165), math.radians(360)),  # 20
    Part.ArcOfCircle(Part.Circle(App.Vector(0, 0, 0), App.Vector(0, 0, 1), 11), math.radians(120), math.radians(165)),  # 21
    Part.ArcOfCircle(Part.Circle(App.Vector(0, 0, 0), App.Vector(0, 0, 1), 11), math.radians(0), math.radians(120)),  # 22
], False)
sketch6.addConstraint([
    Sketcher.Constraint("Coincident", 0, 2, 1, 1),
    Sketcher.Constraint("Coincident", 1, 2, 2, 1),
    Sketcher.Constraint("Coincident", 2, 2, 3, 1),
    Sketcher.Constraint("Coincident", 3, 2, 4, 1),
    Sketcher.Constraint("Coincident", 4, 2, 5, 1),
    Sketcher.Constraint("Coincident", 5, 2, 6, 1),
    Sketcher.Constraint("Coincident", 6, 2, 7, 1),
    Sketcher.Constraint("Coincident", 7, 2, 8, 1),
    Sketcher.Constraint("Coincident", 8, 2, 9, 1),
    Sketcher.Constraint("Coincident", 9, 2, 10, 1),
    Sketcher.Constraint("Coincident", 10, 2, 11, 1),
    Sketcher.Constraint("Coincident", 11, 2, 12, 1),
    Sketcher.Constraint("Coincident", 12, 2, 13, 1),
    Sketcher.Constraint("Coincident", 13, 2, 14, 1),
    Sketcher.Constraint("Coincident", 14, 2, 15, 1),
    Sketcher.Constraint("Coincident", 15, 2, 16, 1),
    Sketcher.Constraint("Coincident", 16, 2, 17, 1),
    Sketcher.Constraint("Coincident", 17, 2, 18, 1),
    Sketcher.Constraint("Coincident", 18, 2, 19, 1),
    Sketcher.Constraint("Coincident", 19, 2, 0, 1),
    Sketcher.Constraint("Tangent", 20, 1, 21, 2),
    Sketcher.Constraint("Tangent", 21, 1, 22, 2),
    Sketcher.Constraint("Tangent", 22, 1, 20, 2),
    Sketcher.Constraint("Horizontal", 0),
    Sketcher.Constraint("Vertical", 2),
    Sketcher.Constraint("Vertical", 5),
    Sketcher.Constraint("Horizontal", 7),
    Sketcher.Constraint("Horizontal", 10),
    Sketcher.Constraint("Vertical", 12),
    Sketcher.Constraint("Vertical", 15),
    Sketcher.Constraint("Horizontal", 17),
    Sketcher.Constraint("Coincident", 1, 3, -1, 1),
    Sketcher.Constraint("Coincident", 6, 3, -1, 1),
    Sketcher.Constraint("Coincident", 11, 3, -1, 1),
    Sketcher.Constraint("Coincident", 16, 3, -1, 1),
    Sketcher.Constraint("Coincident", 20, 3, -1, 1),
    Sketcher.Constraint("Equal", 1, 6),
    Sketcher.Constraint("Equal", 6, 11),
    Sketcher.Constraint("Equal", 11, 16),
    Sketcher.Constraint("Symmetric", 2, 2, 12, 2, -1, 1),
    Sketcher.Constraint("Symmetric", 3, 2, 13, 2, -1, 1),
    Sketcher.Constraint("Symmetric", 4, 2, 14, 2, -1, 1),
    Sketcher.Constraint("Symmetric", 7, 2, 17, 2, -1, 1),
    Sketcher.Constraint("Symmetric", 8, 2, 18, 2, -1, 1),
    Sketcher.Constraint("Symmetric", 9, 2, 19, 2, -1, 1),
    Sketcher.Constraint("Symmetric", 2, 2, 4, 2, -2),
    Sketcher.Constraint("Symmetric", 9, 2, 17, 2, -2),
    Sketcher.Constraint("PointOnObject", 3, 2, -2),
    Sketcher.Constraint("PointOnObject", 8, 2, -1),
    Sketcher.Constraint("PointOnObject", 22, 1, -1),
    Sketcher.Constraint("Perpendicular", 3, 8),
    Sketcher.Constraint("Equal", 17, 2),
    Sketcher.Constraint("Equal", 4, 8),
    Sketcher.Constraint("Radius", 20, 11.0),
    Sketcher.Constraint("Angle", 3, Q("-150 deg")),
    Sketcher.Constraint("DistanceX", 4, 2, 2, 2, 5.0),
    Sketcher.Constraint("DistanceY", -1, 1, 3, 2, 21.5),
    Sketcher.Constraint("Radius", 1, 25.950828),
    Sketcher.Constraint("DistanceX", 21, 1, -1, 1, 5.41841),
    Sketcher.Constraint("DistanceY", 20, 1, 21, 1, 6.635238),
])
pad5 = doc.addObject("PartDesign::Pad", "Pad004")
body.addObject(pad5)
pad5.Profile = sketch6
pad5.Length = 2.1

# Sketch on XY plane
sketch7 = doc.addObject("Sketcher::SketchObject", "Sketch006")
body.addObject(sketch7)
sketch7.AttachmentSupport = (doc.XY_Plane, [""])
sketch7.MapMode = "FlatFace"
sketch7.AttachmentOffset = App.Placement(App.Vector(0, 0, 26.2), App.Rotation())
sketch7.addGeometry([
    Part.ArcOfCircle(Part.Circle(App.Vector(0, 0, 0), App.Vector(0, 0, 1), 26), math.radians(6), math.radians(84)),  # 0
    Part.ArcOfCircle(Part.Circle(App.Vector(0, 24.4, 0), App.Vector(0, 0, 1), 2.9), math.radians(30), math.radians(150)),  # 1
    Part.ArcOfCircle(Part.Circle(App.Vector(0, 0, 0), App.Vector(0, 0, 1), 26), math.radians(96), math.radians(174)),  # 2
    Part.ArcOfCircle(Part.Circle(App.Vector(-24.4, 0, 0), App.Vector(0, 0, 1), 2.9), math.radians(120), math.radians(240)),  # 3
    Part.ArcOfCircle(Part.Circle(App.Vector(0, 0, 0), App.Vector(0, 0, 1), 26), math.radians(-174), math.radians(-96)),  # 4
    Part.ArcOfCircle(Part.Circle(App.Vector(0, -24.4, 0), App.Vector(0, 0, 1), 2.9), math.radians(-150), math.radians(-30)),  # 5
    Part.ArcOfCircle(Part.Circle(App.Vector(0, 0, 0), App.Vector(0, 0, 1), 26), math.radians(-84), math.radians(-6)),  # 6
    Part.ArcOfCircle(Part.Circle(App.Vector(24.4, 0, 0), App.Vector(0, 0, 1), 2.9), math.radians(-60), math.radians(60)),  # 7
    Part.Circle(App.Vector(0, -24.4, 0), App.Vector(0, 0, 1), 1.2),  # 8
    Part.Circle(App.Vector(-24.4, 0, 0), App.Vector(0, 0, 1), 1.2),  # 9
    Part.Circle(App.Vector(0, 0, 0), App.Vector(0, 0, 1), 11),  # 10
    Part.Circle(App.Vector(24.4, 0, 0), App.Vector(0, 0, 1), 1.2),  # 11
    Part.Circle(App.Vector(0, 24.4, 0), App.Vector(0, 0, 1), 1.2),  # 12
], False)
sketch7.addConstraint([
    Sketcher.Constraint("Coincident", 0, 2, 1, 1),
    Sketcher.Constraint("Coincident", 1, 2, 2, 1),
    Sketcher.Constraint("Coincident", 2, 2, 3, 1),
    Sketcher.Constraint("Coincident", 3, 2, 4, 1),
    Sketcher.Constraint("Coincident", 4, 2, 5, 1),
    Sketcher.Constraint("Coincident", 5, 2, 6, 1),
    Sketcher.Constraint("Coincident", 6, 2, 7, 1),
    Sketcher.Constraint("Coincident", 7, 2, 0, 1),
    Sketcher.Constraint("Coincident", 0, 3, -1, 1),
    Sketcher.Constraint("Coincident", 2, 3, -1, 1),
    Sketcher.Constraint("Coincident", 4, 3, -1, 1),
    Sketcher.Constraint("Coincident", 6, 3, -1, 1),
    Sketcher.Constraint("Coincident", 10, 3, -1, 1),
    Sketcher.Constraint("Coincident", 8, 3, 5, 3),
    Sketcher.Constraint("Coincident", 9, 3, 3, 3),
    Sketcher.Constraint("Coincident", 11, 3, 7, 3),
    Sketcher.Constraint("Coincident", 12, 3, 1, 3),
    Sketcher.Constraint("Equal", 0, 2),
    Sketcher.Constraint("Equal", 1, 3),
    Sketcher.Constraint("Equal", 2, 4),
    Sketcher.Constraint("Equal", 3, 5),
    Sketcher.Constraint("Equal", 4, 6),
    Sketcher.Constraint("Equal", 5, 7),
    Sketcher.Constraint("Equal", 8, 9),
    Sketcher.Constraint("Equal", 9, 11),
    Sketcher.Constraint("Equal", 11, 12),
    Sketcher.Constraint("Symmetric", 1, 3, 5, 3, -1, 1),
    Sketcher.Constraint("Symmetric", 3, 3, 7, 3, -1, 1),
    Sketcher.Constraint("PointOnObject", 1, 3, -2),
    Sketcher.Constraint("PointOnObject", 3, 3, -1),
    Sketcher.Constraint("Diameter", 10, 22.0),
    Sketcher.Constraint("Diameter", 8, 2.5),
    Sketcher.Constraint("DistanceX", 1, 2, 0, 2, 5.0),
    Sketcher.Constraint("DistanceY", 3, 2, 2, 2, 5.0),
    Sketcher.Constraint("Radius", 1, 2.886751),
    Sketcher.Constraint("Radius", 0, 25.950828),
])
pad6 = doc.addObject("PartDesign::Pad", "Pad005")
body.addObject(pad6)
pad6.Profile = sketch7
pad6.Length = 5

doc.recompute()
